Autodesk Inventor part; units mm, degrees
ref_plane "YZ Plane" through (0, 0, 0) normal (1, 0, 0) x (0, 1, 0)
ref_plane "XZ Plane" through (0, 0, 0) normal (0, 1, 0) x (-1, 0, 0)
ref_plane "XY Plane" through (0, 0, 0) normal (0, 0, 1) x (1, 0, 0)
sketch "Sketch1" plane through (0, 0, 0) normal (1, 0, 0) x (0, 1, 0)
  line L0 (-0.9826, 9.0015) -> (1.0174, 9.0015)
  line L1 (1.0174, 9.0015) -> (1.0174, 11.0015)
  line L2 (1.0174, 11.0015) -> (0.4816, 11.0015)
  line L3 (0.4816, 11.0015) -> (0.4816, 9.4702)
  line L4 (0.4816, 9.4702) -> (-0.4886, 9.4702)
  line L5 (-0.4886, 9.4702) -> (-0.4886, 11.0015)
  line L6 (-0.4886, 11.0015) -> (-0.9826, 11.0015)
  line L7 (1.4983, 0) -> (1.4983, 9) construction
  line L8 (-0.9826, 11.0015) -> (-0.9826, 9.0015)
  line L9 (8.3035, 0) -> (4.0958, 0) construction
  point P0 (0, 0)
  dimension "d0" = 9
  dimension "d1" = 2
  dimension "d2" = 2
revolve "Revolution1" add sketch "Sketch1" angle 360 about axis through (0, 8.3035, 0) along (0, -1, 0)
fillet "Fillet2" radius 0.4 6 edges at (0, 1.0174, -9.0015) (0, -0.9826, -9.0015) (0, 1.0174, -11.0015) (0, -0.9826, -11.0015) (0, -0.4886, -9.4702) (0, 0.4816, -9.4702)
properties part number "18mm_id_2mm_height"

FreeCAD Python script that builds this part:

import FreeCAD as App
import Part
import Sketcher


def edges_at(feature, points):
    """Names of the edges that pass closest to the given points."""
    edges = feature.Shape.Edges
    near = lambda p: min(range(len(edges)), key=lambda i: edges[i].distToShape(Part.Vertex(*p))[0])
    return sorted({f"Edge{near(p) + 1}" for p in points})

doc = App.newDocument("Part")
body = doc.addObject("PartDesign::Body", "Body")

sketch1 = body.newObject("Sketcher::SketchObject", "Sketch")
sketch1.AttachmentSupport = (doc.getObject("YZ_Plane"), [""])
sketch1.MapMode = "FlatFace"
sketch1.addGeometry([
    Part.LineSegment(App.Vector(-0.98, 11, 0), App.Vector(-0.98, 9, 0)),
    Part.LineSegment(App.Vector(-0.98, 9, 0), App.Vector(1.02, 9, 0)),
    Part.LineSegment(App.Vector(1.02, 9, 0), App.Vector(1.02, 11, 0)),
    Part.LineSegment(App.Vector(1.02, 11, 0), App.Vector(0.48, 11, 0)),
    Part.LineSegment(App.Vector(0.48, 11, 0), App.Vector(0.48, 9.47, 0)),
    Part.LineSegment(App.Vector(0.48, 9.47, 0), App.Vector(-0.49, 9.47, 0)),
    Part.LineSegment(App.Vector(-0.49, 9.47, 0), App.Vector(-0.49, 11, 0)),
    Part.LineSegment(App.Vector(-0.49, 11, 0), App.Vector(-0.98, 11, 0)),
], False)
sketch1.addConstraint([
    Sketcher.Constraint("Coincident", 0, 2, 1, 1),
    Sketcher.Constraint("Coincident", 1, 2, 2, 1),
    Sketcher.Constraint("Coincident", 2, 2, 3, 1),
    Sketcher.Constraint("Coincident", 3, 2, 4, 1),
    Sketcher.Constraint("Coincident", 4, 2, 5, 1),
    Sketcher.Constraint("Coincident", 5, 2, 6, 1),
    Sketcher.Constraint("Coincident", 6, 2, 7, 1),
    Sketcher.Constraint("Coincident", 7, 2, 0, 1),
    Sketcher.Constraint("Vertical", 0),
    Sketcher.Constraint("Horizontal", 1),
    Sketcher.Constraint("Vertical", 2),
    Sketcher.Constraint("Horizontal", 3),
    Sketcher.Constraint("Vertical", 4),
    Sketcher.Constraint("Horizontal", 5),
    Sketcher.Constraint("Vertical", 6),
    Sketcher.Constraint("Horizontal", 7),
    Sketcher.Constraint("Horizontal", 3, 2, 6, 2),
    Sketcher.Constraint("Equal", 1, 0),
    Sketcher.Constraint("DistanceX", 1, 1, 1, 2, 2.0),
    Sketcher.Constraint("DistanceX", 7, 2, 7, 1, 0.494),
    Sketcher.Constraint("DistanceX", 3, 2, 3, 1, 0.5358),
    Sketcher.Constraint("DistanceY", 4, 2, 4, 1, 1.5313),
    Sketcher.Constraint("DistanceX", 0, 2, -1, 1, 0.9826),
    Sketcher.Constraint("DistanceY", -1, 1, 0, 2, 9.0015),
])
revolution = body.newObject("PartDesign::Revolution", "Revolution")
revolution.Profile = sketch1
revolution.ReferenceAxis = (sketch1, ["H_Axis"])
revolution.Angle = 360
doc.recompute()

fillet = body.newObject("PartDesign::Fillet", "Fillet")
fillet.Base = (revolution, edges_at(revolution, [
    (0, 1.017, -9.002),
    (0, -0.983, -9.002),
    (0, 1.017, -11.002),
    (0, -0.983, -11.002),
    (0, -0.489, -9.47),
    (0, 0.482, -9.47),
]))
fillet.Radius = 0.4

doc.recompute()
